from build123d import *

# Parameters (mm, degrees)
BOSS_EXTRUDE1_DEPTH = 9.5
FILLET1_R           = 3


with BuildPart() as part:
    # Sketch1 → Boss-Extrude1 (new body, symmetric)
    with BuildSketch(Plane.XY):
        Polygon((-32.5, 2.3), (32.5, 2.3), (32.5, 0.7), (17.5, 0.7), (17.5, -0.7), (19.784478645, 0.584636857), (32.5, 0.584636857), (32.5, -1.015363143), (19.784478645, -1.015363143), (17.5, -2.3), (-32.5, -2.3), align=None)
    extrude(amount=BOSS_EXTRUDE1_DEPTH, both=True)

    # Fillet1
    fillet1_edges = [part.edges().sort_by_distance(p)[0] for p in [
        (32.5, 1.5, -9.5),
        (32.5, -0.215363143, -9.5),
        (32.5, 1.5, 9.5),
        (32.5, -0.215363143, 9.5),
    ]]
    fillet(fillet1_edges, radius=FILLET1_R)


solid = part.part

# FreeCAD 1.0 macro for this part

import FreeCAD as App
import Part
import Sketcher
from FreeCAD import Vector


def edges_at(feature, points):
    """Names of the edges that pass closest to the given points."""
    edges = feature.Shape.Edges
    near = lambda p: min(range(len(edges)), key=lambda i: edges[i].distToShape(Part.Vertex(*p))[0])
    return sorted({f"Edge{near(p) + 1}" for p in points})


def add_polygon(sketch, points):
    """Adds a closed chain of lines whose ends are joined by coincident constraints."""
    first, n = sketch.GeometryCount, len(points)
    for a, b in zip(points, points[1:] + points[:1]):
        sketch.addGeometry(Part.LineSegment(App.Vector(*a, 0), App.Vector(*b, 0)), False)
    for i in range(n):
        sketch.addConstraint(Sketcher.Constraint("Coincident", first + i, 2, first + (i + 1) % n, 1))

doc = App.newDocument("Part")
body = doc.addObject("PartDesign::Body", "Body")

# Sketch on XY plane
sketch1 = doc.addObject("Sketcher::SketchObject", "Sketch")
body.addObject(sketch1)
sketch1.AttachmentSupport = (doc.XY_Plane, [""])
sketch1.MapMode = "FlatFace"
add_polygon(sketch1, [(32.5, 2.3), (-32.5, 2.3), (-32.5, -2.3), (17.5, -2.3), (19.8, -1), (32.5, -1), (32.5, 0.6), (19.8, 0.6), (17.5, -0.7), (17.5, 0.7), (32.5, 0.7)])  # lines 0-10
sketch1.addConstraint([
    Sketcher.Constraint("Horizontal", 0),
    Sketcher.Constraint("Vertical", 1),
    Sketcher.Constraint("Horizontal", 2),
    Sketcher.Constraint("Horizontal", 4),
    Sketcher.Constraint("Vertical", 5),
    Sketcher.Constraint("Horizontal", 6),
    Sketcher.Constraint("Vertical", 8),
    Sketcher.Constraint("Horizontal", 9),
    Sketcher.Constraint("Vertical", 10),
    Sketcher.Constraint("Symmetric", 1, 2, 10, 2, -1, 1),
    Sketcher.Constraint("Parallel", 3, 7),
    Sketcher.Constraint("Vertical", 3, 2, 6, 2),
    Sketcher.Constraint("Vertical", 2, 2, 7, 2),
    Sketcher.Constraint("Vertical", 5, 2, 9, 2),
    Sketcher.Constraint("Equal", 5, 10),
    Sketcher.Constraint("DistanceX", 0, 2, 0, 1, 65.0),
    Sketcher.Constraint("DistanceX", 2, 1, 2, 2, 50.0),
    Sketcher.Constraint("DistanceY", 1, 2, 1, 1, 4.6),
    Sketcher.Constraint("DistanceY", 5, 1, 5, 2, 1.6),
    Sketcher.Constraint("DistanceX", 4, 1, 4, 2, 12.715521),
    Sketcher.Constraint("Distance", 3, 2.620903),
])
pad1 = doc.addObject("PartDesign::Pad", "Pad")
body.addObject(pad1)
pad1.Profile = sketch1
pad1.Length = 19
pad1.Midplane = True
doc.recompute()

fillet = doc.addObject("PartDesign::Fillet", "Fillet")
body.addObject(fillet)
fillet.Base = (pad1, edges_at(pad1, [
    (32.5, 1.5, -9.5),
    (32.5, -0.215, -9.5),
    (32.5, 1.5, 9.5),
    (32.5, -0.215, 9.5),
]))
fillet.Radius = 3

doc.recompute()
